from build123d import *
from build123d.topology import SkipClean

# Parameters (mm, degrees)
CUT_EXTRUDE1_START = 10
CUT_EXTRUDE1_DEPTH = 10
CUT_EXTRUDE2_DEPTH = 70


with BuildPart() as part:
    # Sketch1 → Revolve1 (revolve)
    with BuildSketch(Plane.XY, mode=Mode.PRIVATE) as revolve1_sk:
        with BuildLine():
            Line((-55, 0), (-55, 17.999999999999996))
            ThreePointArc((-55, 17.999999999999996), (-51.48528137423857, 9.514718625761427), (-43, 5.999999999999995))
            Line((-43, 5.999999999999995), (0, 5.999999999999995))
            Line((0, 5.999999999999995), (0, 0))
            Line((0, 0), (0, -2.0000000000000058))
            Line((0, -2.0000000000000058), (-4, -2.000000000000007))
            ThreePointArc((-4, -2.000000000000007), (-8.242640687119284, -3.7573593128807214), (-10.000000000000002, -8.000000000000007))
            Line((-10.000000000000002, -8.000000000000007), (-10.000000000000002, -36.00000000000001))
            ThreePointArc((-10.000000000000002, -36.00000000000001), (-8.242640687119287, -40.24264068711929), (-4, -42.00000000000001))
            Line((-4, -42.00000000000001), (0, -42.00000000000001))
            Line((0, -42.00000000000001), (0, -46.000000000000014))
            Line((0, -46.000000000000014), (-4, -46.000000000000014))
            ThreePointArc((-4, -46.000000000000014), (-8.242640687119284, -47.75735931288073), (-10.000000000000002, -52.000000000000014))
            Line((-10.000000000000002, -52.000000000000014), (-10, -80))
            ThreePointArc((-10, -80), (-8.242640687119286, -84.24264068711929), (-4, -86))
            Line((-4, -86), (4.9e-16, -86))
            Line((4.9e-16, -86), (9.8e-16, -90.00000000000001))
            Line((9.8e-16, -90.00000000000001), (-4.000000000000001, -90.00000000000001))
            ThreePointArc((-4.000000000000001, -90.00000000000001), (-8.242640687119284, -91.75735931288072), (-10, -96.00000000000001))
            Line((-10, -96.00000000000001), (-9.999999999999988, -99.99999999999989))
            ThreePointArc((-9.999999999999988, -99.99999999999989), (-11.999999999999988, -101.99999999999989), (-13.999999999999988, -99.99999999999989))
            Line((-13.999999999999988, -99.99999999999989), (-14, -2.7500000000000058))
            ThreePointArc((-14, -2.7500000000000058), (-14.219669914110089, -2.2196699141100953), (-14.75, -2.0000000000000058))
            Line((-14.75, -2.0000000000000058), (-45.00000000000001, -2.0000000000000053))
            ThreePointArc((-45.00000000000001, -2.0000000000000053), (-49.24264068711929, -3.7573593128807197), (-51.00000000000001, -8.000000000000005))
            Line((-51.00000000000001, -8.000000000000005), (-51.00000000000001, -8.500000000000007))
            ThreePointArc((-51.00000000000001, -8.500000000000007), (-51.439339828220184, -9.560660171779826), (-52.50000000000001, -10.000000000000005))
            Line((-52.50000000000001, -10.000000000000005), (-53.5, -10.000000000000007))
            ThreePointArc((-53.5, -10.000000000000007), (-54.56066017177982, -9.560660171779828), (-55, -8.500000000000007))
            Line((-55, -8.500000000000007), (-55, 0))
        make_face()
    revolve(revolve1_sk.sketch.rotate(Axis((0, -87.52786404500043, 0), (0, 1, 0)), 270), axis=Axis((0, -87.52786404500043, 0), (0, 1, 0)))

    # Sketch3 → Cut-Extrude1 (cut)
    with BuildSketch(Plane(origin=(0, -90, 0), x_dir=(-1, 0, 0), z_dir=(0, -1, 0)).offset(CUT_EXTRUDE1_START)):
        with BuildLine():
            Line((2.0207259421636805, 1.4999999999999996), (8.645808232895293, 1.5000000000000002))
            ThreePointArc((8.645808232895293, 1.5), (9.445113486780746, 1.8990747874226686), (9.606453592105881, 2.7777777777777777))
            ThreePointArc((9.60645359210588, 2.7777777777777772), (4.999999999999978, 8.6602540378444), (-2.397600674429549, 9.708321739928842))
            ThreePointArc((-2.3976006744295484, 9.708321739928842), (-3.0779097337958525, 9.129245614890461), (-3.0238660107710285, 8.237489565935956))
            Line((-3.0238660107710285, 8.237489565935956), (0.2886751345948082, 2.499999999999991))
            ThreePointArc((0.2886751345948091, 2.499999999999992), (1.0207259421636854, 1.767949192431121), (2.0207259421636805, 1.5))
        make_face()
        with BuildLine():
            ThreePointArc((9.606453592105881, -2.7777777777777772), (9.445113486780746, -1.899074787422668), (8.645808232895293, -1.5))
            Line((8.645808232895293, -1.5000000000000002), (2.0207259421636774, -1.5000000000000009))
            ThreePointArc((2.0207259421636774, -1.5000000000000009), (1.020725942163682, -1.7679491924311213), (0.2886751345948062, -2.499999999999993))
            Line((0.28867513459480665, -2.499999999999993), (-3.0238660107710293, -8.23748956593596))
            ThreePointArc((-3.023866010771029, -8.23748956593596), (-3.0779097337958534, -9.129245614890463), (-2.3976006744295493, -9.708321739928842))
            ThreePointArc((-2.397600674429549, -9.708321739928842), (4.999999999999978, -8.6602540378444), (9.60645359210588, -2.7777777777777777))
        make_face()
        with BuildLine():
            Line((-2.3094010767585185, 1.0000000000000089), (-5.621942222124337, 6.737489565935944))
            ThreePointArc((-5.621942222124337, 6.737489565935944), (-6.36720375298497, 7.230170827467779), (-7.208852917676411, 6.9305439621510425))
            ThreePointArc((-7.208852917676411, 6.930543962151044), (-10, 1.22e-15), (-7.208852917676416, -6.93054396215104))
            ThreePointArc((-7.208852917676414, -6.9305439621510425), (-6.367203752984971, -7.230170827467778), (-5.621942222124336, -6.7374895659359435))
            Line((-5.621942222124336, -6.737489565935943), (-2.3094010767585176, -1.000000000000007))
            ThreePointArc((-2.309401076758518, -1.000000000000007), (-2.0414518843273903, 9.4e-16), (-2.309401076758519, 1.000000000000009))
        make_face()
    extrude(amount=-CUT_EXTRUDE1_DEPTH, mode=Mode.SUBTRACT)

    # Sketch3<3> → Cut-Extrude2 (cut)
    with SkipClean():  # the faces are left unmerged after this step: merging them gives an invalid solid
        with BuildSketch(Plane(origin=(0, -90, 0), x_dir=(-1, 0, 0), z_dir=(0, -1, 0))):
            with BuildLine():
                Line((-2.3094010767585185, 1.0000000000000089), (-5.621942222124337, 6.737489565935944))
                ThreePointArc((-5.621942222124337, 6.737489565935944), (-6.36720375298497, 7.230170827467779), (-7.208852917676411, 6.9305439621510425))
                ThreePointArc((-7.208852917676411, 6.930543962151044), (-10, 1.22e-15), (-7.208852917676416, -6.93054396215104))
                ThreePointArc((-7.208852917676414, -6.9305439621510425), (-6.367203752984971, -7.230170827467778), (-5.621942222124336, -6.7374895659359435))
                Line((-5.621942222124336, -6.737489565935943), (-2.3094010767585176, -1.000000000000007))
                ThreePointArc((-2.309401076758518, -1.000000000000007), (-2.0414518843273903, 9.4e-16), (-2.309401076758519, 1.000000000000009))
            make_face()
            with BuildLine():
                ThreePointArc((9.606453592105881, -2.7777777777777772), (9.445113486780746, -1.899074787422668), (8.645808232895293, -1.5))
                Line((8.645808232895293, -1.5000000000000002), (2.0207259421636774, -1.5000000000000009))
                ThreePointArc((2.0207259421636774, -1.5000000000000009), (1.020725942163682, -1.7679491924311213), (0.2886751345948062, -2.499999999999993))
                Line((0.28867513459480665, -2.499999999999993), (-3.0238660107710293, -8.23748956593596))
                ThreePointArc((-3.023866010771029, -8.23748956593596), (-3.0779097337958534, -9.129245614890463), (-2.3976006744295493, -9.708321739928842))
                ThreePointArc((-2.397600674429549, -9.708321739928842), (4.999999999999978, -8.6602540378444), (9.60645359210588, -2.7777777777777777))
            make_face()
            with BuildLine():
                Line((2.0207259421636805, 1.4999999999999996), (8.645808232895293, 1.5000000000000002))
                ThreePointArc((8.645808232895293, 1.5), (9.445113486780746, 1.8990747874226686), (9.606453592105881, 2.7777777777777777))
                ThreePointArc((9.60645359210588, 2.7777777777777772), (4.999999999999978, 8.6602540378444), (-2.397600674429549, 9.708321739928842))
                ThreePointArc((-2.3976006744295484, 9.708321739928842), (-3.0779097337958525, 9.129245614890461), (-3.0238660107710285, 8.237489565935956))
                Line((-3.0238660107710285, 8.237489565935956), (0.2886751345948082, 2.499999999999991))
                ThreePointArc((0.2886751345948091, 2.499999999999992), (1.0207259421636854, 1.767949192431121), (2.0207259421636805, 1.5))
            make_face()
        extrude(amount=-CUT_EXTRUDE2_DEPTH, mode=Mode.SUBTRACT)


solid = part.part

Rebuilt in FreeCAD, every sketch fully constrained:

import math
import FreeCAD as App
import Part
import Sketcher

V = App.Vector
Q = App.Units.Quantity

doc = App.newDocument("Part")
body = doc.addObject("PartDesign::Body", "Body")

# Sketch on XY plane
sketch1 = body.newObject("Sketcher::SketchObject", "Sketch")
sketch1.AttachmentSupport = (doc.getObject("XY_Plane"), [""])
sketch1.MapMode = "FlatFace"
sketch1.addGeometry([
    Part.ArcOfCircle(Part.Circle(V(-43, 18, 0), V(0, 0, 1), 12), math.radians(180), math.radians(270)),  # 0
    Part.LineSegment(V(-55, 18, 0), V(-55, -8.5, 0)),  # 1
    Part.ArcOfCircle(Part.Circle(V(-53.5, -8.5, 0), V(0, 0, 1), 1.5), math.radians(180), math.radians(270)),  # 2
    Part.LineSegment(V(-53.5, -10, 0), V(-52.5, -10, 0)),  # 3
    Part.ArcOfCircle(Part.Circle(V(-52.5, -8.5, 0), V(0, 0, 1), 1.5), math.radians(-90), math.radians(0)),  # 4
    Part.LineSegment(V(-51, -8.5, 0), V(-51, -8, 0)),  # 5
    Part.ArcOfCircle(Part.Circle(V(-45, -8, 0), V(0, 0, 1), 6), math.radians(90), math.radians(180)),  # 6
    Part.LineSegment(V(-45, -2, 0), V(-14.8, -2, 0)),  # 7
    Part.ArcOfCircle(Part.Circle(V(-14.8, -2.8, 0), V(0, 0, 1), 0.8), math.radians(0), math.radians(90)),  # 8
    Part.LineSegment(V(-14, -2.8, 0), V(-14, -100, 0)),  # 9
    Part.ArcOfCircle(Part.Circle(V(-12, -100, 0), V(0, 0, 1), 2), math.radians(180), math.radians(360)),  # 10
    Part.LineSegment(V(-10, -100, 0), V(-10, -96, 0)),  # 11
    Part.ArcOfCircle(Part.Circle(V(-4, -96, 0), V(0, 0, 1), 6), math.radians(90), math.radians(180)),  # 12
    Part.LineSegment(V(-4, -90, 0), V(0, -90, 0)),  # 13
    Part.LineSegment(V(0, -90, 0), V(0, -86, 0)),  # 14
    Part.LineSegment(V(0, -86, 0), V(-4, -86, 0)),  # 15
    Part.ArcOfCircle(Part.Circle(V(-4, -80, 0), V(0, 0, 1), 6), math.radians(180), math.radians(270)),  # 16
    Part.LineSegment(V(-10, -80, 0), V(-10, -52, 0)),  # 17
    Part.ArcOfCircle(Part.Circle(V(-4, -52, 0), V(0, 0, 1), 6), math.radians(90), math.radians(180)),  # 18
    Part.LineSegment(V(-4, -46, 0), V(0, -46, 0)),  # 19
    Part.LineSegment(V(0, -46, 0), V(0, -42, 0)),  # 20
    Part.LineSegment(V(0, -42, 0), V(-4, -42, 0)),  # 21
    Part.ArcOfCircle(Part.Circle(V(-4, -36, 0), V(0, 0, 1), 6), math.radians(180), math.radians(270)),  # 22
    Part.LineSegment(V(-10, -36, 0), V(-10, -8, 0)),  # 23
    Part.ArcOfCircle(Part.Circle(V(-4, -8, 0), V(0, 0, 1), 6), math.radians(90), math.radians(180)),  # 24
    Part.LineSegment(V(-4, -2, 0), V(0, -2, 0)),  # 25
    Part.LineSegment(V(0, -2, 0), V(0, 6, 0)),  # 26
    Part.LineSegment(V(0, 6, 0), V(-43, 6, 0)),  # 27
], False)
sketch1.addConstraint([
    Sketcher.Constraint("Tangent", 0, 1, 1, 1),
    Sketcher.Constraint("Tangent", 1, 2, 2, 1),
    Sketcher.Constraint("Tangent", 2, 2, 3, 1),
    Sketcher.Constraint("Tangent", 3, 2, 4, 1),
    Sketcher.Constraint("Tangent", 4, 2, 5, 1),
    Sketcher.Constraint("Tangent", 5, 2, 6, 2),
    Sketcher.Constraint("Tangent", 6, 1, 7, 1),
    Sketcher.Constraint("Tangent", 7, 2, 8, 2),
    Sketcher.Constraint("Tangent", 8, 1, 9, 1),
    Sketcher.Constraint("Tangent", 9, 2, 10, 1),
    Sketcher.Constraint("Tangent", 10, 2, 11, 1),
    Sketcher.Constraint("Tangent", 11, 2, 12, 2),
    Sketcher.Constraint("Tangent", 12, 1, 13, 1),
    Sketcher.Constraint("Coincident", 13, 2, 14, 1),
    Sketcher.Constraint("Coincident", 14, 2, 15, 1),
    Sketcher.Constraint("Tangent", 15, 2, 16, 2),
    Sketcher.Constraint("Tangent", 16, 1, 17, 1),
    Sketcher.Constraint("Tangent", 17, 2, 18, 2),
    Sketcher.Constraint("Tangent", 18, 1, 19, 1),
    Sketcher.Constraint("Coincident", 19, 2, 20, 1),
    Sketcher.Constraint("Coincident", 20, 2, 21, 1),
    Sketcher.Constraint("Tangent", 21, 2, 22, 2),
    Sketcher.Constraint("Tangent", 22, 1, 23, 1),
    Sketcher.Constraint("Tangent", 23, 2, 24, 2),
    Sketcher.Constraint("Tangent", 24, 1, 25, 1),
    Sketcher.Constraint("Coincident", 25, 2, 26, 1),
    Sketcher.Constraint("Coincident", 26, 2, 27, 1),
    Sketcher.Constraint("Tangent", 27, 2, 0, 2),
    Sketcher.Constraint("Vertical", 1),
    Sketcher.Constraint("Horizontal", 3),
    Sketcher.Constraint("Vertical", 5),
    Sketcher.Constraint("Horizontal", 7),
    Sketcher.Constraint("Vertical", 9),
    Sketcher.Constraint("Vertical", 11),
    Sketcher.Constraint("Horizontal", 13),
    Sketcher.Constraint("Vertical", 14),
    Sketcher.Constraint("Horizontal", 15),
    Sketcher.Constraint("Vertical", 17),
    Sketcher.Constraint("Horizontal", 19),
    Sketcher.Constraint("Vertical", 20),
    Sketcher.Constraint("Horizontal", 21),
    Sketcher.Constraint("Vertical", 23),
    Sketcher.Constraint("Horizontal", 25),
    Sketcher.Constraint("Vertical", 26),
    Sketcher.Constraint("Horizontal", 27),
    Sketcher.Constraint("Equal", 2, 4),
    Sketcher.Constraint("Equal", 6, 12),
    Sketcher.Constraint("Equal", 12, 16),
    Sketcher.Constraint("Equal", 16, 18),
    Sketcher.Constraint("Equal", 18, 22),
    Sketcher.Constraint("Equal", 22, 24),
    Sketcher.Constraint("PointOnObject", 13, 2, -2),
    Sketcher.Constraint("PointOnObject", 19, 2, -2),
    Sketcher.Constraint("PointOnObject", 25, 2, -2),
    Sketcher.Constraint("Horizontal", 6, 3, 24, 3),
    Sketcher.Constraint("Vertical", 12, 3, 16, 3),
    Sketcher.Constraint("Vertical", 18, 3, 22, 3),
    Sketcher.Constraint("Equal", 25, 11),
    Sketcher.Constraint("Equal", 11, 14),
    Sketcher.Constraint("Equal", 14, 20),
    Sketcher.Constraint("Equal", 17, 23),
    Sketcher.Constraint("Radius", 0, Q("12 mm")),
    Sketcher.Constraint("Radius", 6, Q("6 mm")),
    Sketcher.Constraint("Radius", 10, Q("2 mm")),
    Sketcher.Constraint("Radius", 2, Q("1.5 mm")),
    Sketcher.Constraint("DistanceX", 3, 1, 3, 2, Q("1 mm")),
    Sketcher.Constraint("DistanceX", 13, 1, 13, 2, Q("4 mm")),
    Sketcher.Constraint("DistanceX", 27, 2, 27, 1, Q("43 mm")),
    Sketcher.Constraint("DistanceY", 17, 1, 17, 2, Q("28 mm")),
    Sketcher.Constraint("DistanceY", 26, 1, 26, 2, Q("8 mm")),
    Sketcher.Constraint("Radius", 8, Q("0.75 mm")),
    Sketcher.Constraint("DistanceY", 1, 2, 1, 1, Q("26.5 mm")),
    Sketcher.Constraint("DistanceY", -1, 1, 0, 3, Q("18 mm")),
])
revolution = body.newObject("PartDesign::Revolution", "Revolution")
revolution.Profile = sketch1
revolution.ReferenceAxis = (sketch1, ["V_Axis"])
revolution.Angle = 360

# Sketch on XZ plane
sketch2 = body.newObject("Sketcher::SketchObject", "Sketch001")
sketch2.AttachmentSupport = (doc.getObject("XZ_Plane"), [""])
sketch2.MapMode = "FlatFace"
sketch2.AttachmentOffset = App.Placement(V(0, 0, 100), App.Rotation())
sketch2.addGeometry([
    Part.LineSegment(V(-2, -1.5, 0), V(-8.6, -1.5, 0)),  # 0
    Part.ArcOfCircle(Part.Circle(V(-8.6, -2.5, 0), V(0, 0, 1), 1), math.radians(90), math.radians(196)),  # 1
    Part.ArcOfCircle(Part.Circle(V(0, 0, 0), V(0, 0, 1), 10), math.radians(-164), math.radians(-76)),  # 2
    Part.ArcOfCircle(Part.Circle(V(2.2, -8.7, 0), V(0, 0, 1), 1), math.radians(-76), math.radians(30)),  # 3
    Part.LineSegment(V(3, -8.2, 0), V(-0.3, -2.5, 0)),  # 4
    Part.ArcOfCircle(Part.Circle(V(-2, -3.5, 0), V(0, 0, 1), 2), math.radians(30), math.radians(90)),  # 5
    Part.ArcOfCircle(Part.Circle(V(-8.6, 2.5, 0), V(0, 0, 1), 1), math.radians(164), math.radians(270)),  # 6
    Part.LineSegment(V(-8.6, 1.5, 0), V(-2, 1.5, 0)),  # 7
    Part.ArcOfCircle(Part.Circle(V(-2, 3.5, 0), V(0, 0, 1), 2), math.radians(-90), math.radians(-30)),  # 8
    Part.LineSegment(V(-0.3, 2.5, 0), V(3, 8.2, 0)),  # 9
    Part.ArcOfCircle(Part.Circle(V(2.2, 8.7, 0), V(0, 0, 1), 1), math.radians(-30), math.radians(76)),  # 10
    Part.ArcOfCircle(Part.Circle(V(0, 0, 0), V(0, 0, 1), 10), math.radians(76), math.radians(164)),  # 11
    Part.LineSegment(V(2.3, -1, 0), V(5.6, -6.7, 0)),  # 12
    Part.ArcOfCircle(Part.Circle(V(6.5, -6.2, 0), V(0, 0, 1), 1), math.radians(-150), math.radians(-44)),  # 13
    Part.ArcOfCircle(Part.Circle(V(0, 0, 0), V(0, 0, 1), 10), math.radians(-44), math.radians(44)),  # 14
    Part.ArcOfCircle(Part.Circle(V(6.5, 6.2, 0), V(0, 0, 1), 1), math.radians(44), math.radians(150)),  # 15
    Part.LineSegment(V(5.6, 6.7, 0), V(2.3, 1, 0)),  # 16
    Part.ArcOfCircle(Part.Circle(V(4, 0, 0), V(0, 0, 1), 2), math.radians(150), math.radians(210)),  # 17
], False)
sketch2.addConstraint([
    Sketcher.Constraint("Tangent", 0, 2, 1, 1),
    Sketcher.Constraint("Tangent", 1, 2, 2, 1),
    Sketcher.Constraint("Tangent", 2, 2, 3, 1),
    Sketcher.Constraint("Tangent", 3, 2, 4, 1),
    Sketcher.Constraint("Tangent", 4, 2, 5, 1),
    Sketcher.Constraint("Tangent", 5, 2, 0, 1),
    Sketcher.Constraint("Tangent", 6, 2, 7, 1),
    Sketcher.Constraint("Tangent", 7, 2, 8, 1),
    Sketcher.Constraint("Tangent", 8, 2, 9, 1),
    Sketcher.Constraint("Tangent", 9, 2, 10, 1),
    Sketcher.Constraint("Tangent", 10, 2, 11, 1),
    Sketcher.Constraint("Tangent", 11, 2, 6, 1),
    Sketcher.Constraint("Tangent", 12, 2, 13, 1),
    Sketcher.Constraint("Tangent", 13, 2, 14, 1),
    Sketcher.Constraint("Tangent", 14, 2, 15, 1),
    Sketcher.Constraint("Tangent", 15, 2, 16, 1),
    Sketcher.Constraint("Tangent", 16, 2, 17, 1),
    Sketcher.Constraint("Tangent", 17, 2, 12, 1),
    Sketcher.Constraint("Horizontal", 0),
    Sketcher.Constraint("Horizontal", 7),
    Sketcher.Constraint("Coincident", 2, 3, -1, 1),
    Sketcher.Constraint("Coincident", 11, 3, -1, 1),
    Sketcher.Constraint("Coincident", 14, 3, -1, 1),
    Sketcher.Constraint("Equal", 1, 3),
    Sketcher.Constraint("Equal", 3, 6),
    Sketcher.Constraint("Equal", 5, 8),
    Sketcher.Constraint("Equal", 6, 10),
    Sketcher.Constraint("Equal", 2, 11),
    Sketcher.Constraint("Equal", 10, 13),
    Sketcher.Constraint("Equal", 11, 14),
    Sketcher.Constraint("Equal", 13, 15),
    Sketcher.Constraint("Equal", 8, 17),
    Sketcher.Constraint("Symmetric", 5, 3, 8, 3, -1),
    Sketcher.Constraint("Symmetric", 12, 2, 15, 2, -1),
    Sketcher.Constraint("Parallel", 4, 12),
    Sketcher.Constraint("Parallel", 9, 16),
    Sketcher.Constraint("Horizontal", 1, 3, 4, 2),
    Sketcher.Constraint("Equal", 9, 12),
    Sketcher.Constraint("Radius", 1, Q("1 mm")),
    Sketcher.Constraint("Radius", 2, Q("10 mm")),
    Sketcher.Constraint("Radius", 5, Q("2 mm")),
    Sketcher.Constraint("DistanceY", 1, 3, 6, 3, Q("5 mm")),
    Sketcher.Constraint("DistanceX", -1, 1, 2, 2, Q("2.397601 mm")),
])
pocket1 = body.newObject("PartDesign::Pocket", "Pocket")
pocket1.Profile = sketch2
pocket1.Length = 10

# Sketch on XZ plane
sketch3 = body.newObject("Sketcher::SketchObject", "Sketch002")
sketch3.AttachmentSupport = (doc.getObject("XZ_Plane"), [""])
sketch3.MapMode = "FlatFace"
sketch3.AttachmentOffset = App.Placement(V(0, 0, 90), App.Rotation())
sketch3.addGeometry([
    Part.LineSegment(V(2.3, -1, 0), V(5.6, -6.7, 0)),  # 0
    Part.ArcOfCircle(Part.Circle(V(6.5, -6.2, 0), V(0, 0, 1), 1), math.radians(-150), math.radians(-44)),  # 1
    Part.ArcOfCircle(Part.Circle(V(0, 0, 0), V(0, 0, 1), 10), math.radians(-44), math.radians(44)),  # 2
    Part.ArcOfCircle(Part.Circle(V(6.5, 6.2, 0), V(0, 0, 1), 1), math.radians(44), math.radians(150)),  # 3
    Part.LineSegment(V(5.6, 6.7, 0), V(2.3, 1, 0)),  # 4
    Part.ArcOfCircle(Part.Circle(V(4, 0, 0), V(0, 0, 1), 2), math.radians(150), math.radians(210)),  # 5
    Part.ArcOfCircle(Part.Circle(V(-8.6, 2.5, 0), V(0, 0, 1), 1), math.radians(164), math.radians(270)),  # 6
    Part.LineSegment(V(-8.6, 1.5, 0), V(-2, 1.5, 0)),  # 7
    Part.ArcOfCircle(Part.Circle(V(-2, 3.5, 0), V(0, 0, 1), 2), math.radians(-90), math.radians(-30)),  # 8
    Part.LineSegment(V(-0.3, 2.5, 0), V(3, 8.2, 0)),  # 9
    Part.ArcOfCircle(Part.Circle(V(2.2, 8.7, 0), V(0, 0, 1), 1), math.radians(-30), math.radians(76)),  # 10
    Part.ArcOfCircle(Part.Circle(V(0, 0, 0), V(0, 0, 1), 10), math.radians(76), math.radians(164)),  # 11
    Part.LineSegment(V(-2, -1.5, 0), V(-8.6, -1.5, 0)),  # 12
    Part.ArcOfCircle(Part.Circle(V(-8.6, -2.5, 0), V(0, 0, 1), 1), math.radians(90), math.radians(196)),  # 13
    Part.ArcOfCircle(Part.Circle(V(0, 0, 0), V(0, 0, 1), 10), math.radians(-164), math.radians(-76)),  # 14
    Part.ArcOfCircle(Part.Circle(V(2.2, -8.7, 0), V(0, 0, 1), 1), math.radians(-76), math.radians(30)),  # 15
    Part.LineSegment(V(3, -8.2, 0), V(-0.3, -2.5, 0)),  # 16
    Part.ArcOfCircle(Part.Circle(V(-2, -3.5, 0), V(0, 0, 1), 2), math.radians(30), math.radians(90)),  # 17
], False)
sketch3.addConstraint([
    Sketcher.Constraint("Tangent", 0, 2, 1, 1),
    Sketcher.Constraint("Tangent", 1, 2, 2, 1),
    Sketcher.Constraint("Tangent", 2, 2, 3, 1),
    Sketcher.Constraint("Tangent", 3, 2, 4, 1),
    Sketcher.Constraint("Tangent", 4, 2, 5, 1),
    Sketcher.Constraint("Tangent", 5, 2, 0, 1),
    Sketcher.Constraint("Tangent", 6, 2, 7, 1),
    Sketcher.Constraint("Tangent", 7, 2, 8, 1),
    Sketcher.Constraint("Tangent", 8, 2, 9, 1),
    Sketcher.Constraint("Tangent", 9, 2, 10, 1),
    Sketcher.Constraint("Tangent", 10, 2, 11, 1),
    Sketcher.Constraint("Tangent", 11, 2, 6, 1),
    Sketcher.Constraint("Tangent", 12, 2, 13, 1),
    Sketcher.Constraint("Tangent", 13, 2, 14, 1),
    Sketcher.Constraint("Tangent", 14, 2, 15, 1),
    Sketcher.Constraint("Tangent", 15, 2, 16, 1),
    Sketcher.Constraint("Tangent", 16, 2, 17, 1),
    Sketcher.Constraint("Tangent", 17, 2, 12, 1),
    Sketcher.Constraint("Horizontal", 7),
    Sketcher.Constraint("Horizontal", 12),
    Sketcher.Constraint("Coincident", 2, 3, -1, 1),
    Sketcher.Constraint("Coincident", 11, 3, -1, 1),
    Sketcher.Constraint("Coincident", 14, 3, -1, 1),
    Sketcher.Constraint("Equal", 1, 3),
    Sketcher.Constraint("Equal", 3, 6),
    Sketcher.Constraint("Equal", 5, 8),
    Sketcher.Constraint("Equal", 6, 10),
    Sketcher.Constraint("Equal", 2, 11),
    Sketcher.Constraint("Equal", 10, 13),
    Sketcher.Constraint("Equal", 11, 14),
    Sketcher.Constraint("Equal", 13, 15),
    Sketcher.Constraint("Equal", 8, 17),
    Sketcher.Constraint("Symmetric", 8, 3, 17, 3, -1),
    Sketcher.Constraint("Symmetric", 0, 2, 3, 2, -1),
    Sketcher.Constraint("Parallel", 4, 9),
    Sketcher.Constraint("Parallel", 0, 16),
    Sketcher.Constraint("Horizontal", 6, 3, 8, 2),
    Sketcher.Constraint("Equal", 4, 9),
    Sketcher.Constraint("Radius", 1, Q("1 mm")),
    Sketcher.Constraint("Radius", 2, Q("10 mm")),
    Sketcher.Constraint("Radius", 5, Q("2 mm")),
    Sketcher.Constraint("DistanceY", 13, 3, 6, 3, Q("5 mm")),
    Sketcher.Constraint("DistanceX", -1, 1, 4, 2, Q("2.309401 mm")),
])
pocket2 = body.newObject("PartDesign::Pocket", "Pocket001")
pocket2.Profile = sketch3
pocket2.Length = 70

doc.recompute()
